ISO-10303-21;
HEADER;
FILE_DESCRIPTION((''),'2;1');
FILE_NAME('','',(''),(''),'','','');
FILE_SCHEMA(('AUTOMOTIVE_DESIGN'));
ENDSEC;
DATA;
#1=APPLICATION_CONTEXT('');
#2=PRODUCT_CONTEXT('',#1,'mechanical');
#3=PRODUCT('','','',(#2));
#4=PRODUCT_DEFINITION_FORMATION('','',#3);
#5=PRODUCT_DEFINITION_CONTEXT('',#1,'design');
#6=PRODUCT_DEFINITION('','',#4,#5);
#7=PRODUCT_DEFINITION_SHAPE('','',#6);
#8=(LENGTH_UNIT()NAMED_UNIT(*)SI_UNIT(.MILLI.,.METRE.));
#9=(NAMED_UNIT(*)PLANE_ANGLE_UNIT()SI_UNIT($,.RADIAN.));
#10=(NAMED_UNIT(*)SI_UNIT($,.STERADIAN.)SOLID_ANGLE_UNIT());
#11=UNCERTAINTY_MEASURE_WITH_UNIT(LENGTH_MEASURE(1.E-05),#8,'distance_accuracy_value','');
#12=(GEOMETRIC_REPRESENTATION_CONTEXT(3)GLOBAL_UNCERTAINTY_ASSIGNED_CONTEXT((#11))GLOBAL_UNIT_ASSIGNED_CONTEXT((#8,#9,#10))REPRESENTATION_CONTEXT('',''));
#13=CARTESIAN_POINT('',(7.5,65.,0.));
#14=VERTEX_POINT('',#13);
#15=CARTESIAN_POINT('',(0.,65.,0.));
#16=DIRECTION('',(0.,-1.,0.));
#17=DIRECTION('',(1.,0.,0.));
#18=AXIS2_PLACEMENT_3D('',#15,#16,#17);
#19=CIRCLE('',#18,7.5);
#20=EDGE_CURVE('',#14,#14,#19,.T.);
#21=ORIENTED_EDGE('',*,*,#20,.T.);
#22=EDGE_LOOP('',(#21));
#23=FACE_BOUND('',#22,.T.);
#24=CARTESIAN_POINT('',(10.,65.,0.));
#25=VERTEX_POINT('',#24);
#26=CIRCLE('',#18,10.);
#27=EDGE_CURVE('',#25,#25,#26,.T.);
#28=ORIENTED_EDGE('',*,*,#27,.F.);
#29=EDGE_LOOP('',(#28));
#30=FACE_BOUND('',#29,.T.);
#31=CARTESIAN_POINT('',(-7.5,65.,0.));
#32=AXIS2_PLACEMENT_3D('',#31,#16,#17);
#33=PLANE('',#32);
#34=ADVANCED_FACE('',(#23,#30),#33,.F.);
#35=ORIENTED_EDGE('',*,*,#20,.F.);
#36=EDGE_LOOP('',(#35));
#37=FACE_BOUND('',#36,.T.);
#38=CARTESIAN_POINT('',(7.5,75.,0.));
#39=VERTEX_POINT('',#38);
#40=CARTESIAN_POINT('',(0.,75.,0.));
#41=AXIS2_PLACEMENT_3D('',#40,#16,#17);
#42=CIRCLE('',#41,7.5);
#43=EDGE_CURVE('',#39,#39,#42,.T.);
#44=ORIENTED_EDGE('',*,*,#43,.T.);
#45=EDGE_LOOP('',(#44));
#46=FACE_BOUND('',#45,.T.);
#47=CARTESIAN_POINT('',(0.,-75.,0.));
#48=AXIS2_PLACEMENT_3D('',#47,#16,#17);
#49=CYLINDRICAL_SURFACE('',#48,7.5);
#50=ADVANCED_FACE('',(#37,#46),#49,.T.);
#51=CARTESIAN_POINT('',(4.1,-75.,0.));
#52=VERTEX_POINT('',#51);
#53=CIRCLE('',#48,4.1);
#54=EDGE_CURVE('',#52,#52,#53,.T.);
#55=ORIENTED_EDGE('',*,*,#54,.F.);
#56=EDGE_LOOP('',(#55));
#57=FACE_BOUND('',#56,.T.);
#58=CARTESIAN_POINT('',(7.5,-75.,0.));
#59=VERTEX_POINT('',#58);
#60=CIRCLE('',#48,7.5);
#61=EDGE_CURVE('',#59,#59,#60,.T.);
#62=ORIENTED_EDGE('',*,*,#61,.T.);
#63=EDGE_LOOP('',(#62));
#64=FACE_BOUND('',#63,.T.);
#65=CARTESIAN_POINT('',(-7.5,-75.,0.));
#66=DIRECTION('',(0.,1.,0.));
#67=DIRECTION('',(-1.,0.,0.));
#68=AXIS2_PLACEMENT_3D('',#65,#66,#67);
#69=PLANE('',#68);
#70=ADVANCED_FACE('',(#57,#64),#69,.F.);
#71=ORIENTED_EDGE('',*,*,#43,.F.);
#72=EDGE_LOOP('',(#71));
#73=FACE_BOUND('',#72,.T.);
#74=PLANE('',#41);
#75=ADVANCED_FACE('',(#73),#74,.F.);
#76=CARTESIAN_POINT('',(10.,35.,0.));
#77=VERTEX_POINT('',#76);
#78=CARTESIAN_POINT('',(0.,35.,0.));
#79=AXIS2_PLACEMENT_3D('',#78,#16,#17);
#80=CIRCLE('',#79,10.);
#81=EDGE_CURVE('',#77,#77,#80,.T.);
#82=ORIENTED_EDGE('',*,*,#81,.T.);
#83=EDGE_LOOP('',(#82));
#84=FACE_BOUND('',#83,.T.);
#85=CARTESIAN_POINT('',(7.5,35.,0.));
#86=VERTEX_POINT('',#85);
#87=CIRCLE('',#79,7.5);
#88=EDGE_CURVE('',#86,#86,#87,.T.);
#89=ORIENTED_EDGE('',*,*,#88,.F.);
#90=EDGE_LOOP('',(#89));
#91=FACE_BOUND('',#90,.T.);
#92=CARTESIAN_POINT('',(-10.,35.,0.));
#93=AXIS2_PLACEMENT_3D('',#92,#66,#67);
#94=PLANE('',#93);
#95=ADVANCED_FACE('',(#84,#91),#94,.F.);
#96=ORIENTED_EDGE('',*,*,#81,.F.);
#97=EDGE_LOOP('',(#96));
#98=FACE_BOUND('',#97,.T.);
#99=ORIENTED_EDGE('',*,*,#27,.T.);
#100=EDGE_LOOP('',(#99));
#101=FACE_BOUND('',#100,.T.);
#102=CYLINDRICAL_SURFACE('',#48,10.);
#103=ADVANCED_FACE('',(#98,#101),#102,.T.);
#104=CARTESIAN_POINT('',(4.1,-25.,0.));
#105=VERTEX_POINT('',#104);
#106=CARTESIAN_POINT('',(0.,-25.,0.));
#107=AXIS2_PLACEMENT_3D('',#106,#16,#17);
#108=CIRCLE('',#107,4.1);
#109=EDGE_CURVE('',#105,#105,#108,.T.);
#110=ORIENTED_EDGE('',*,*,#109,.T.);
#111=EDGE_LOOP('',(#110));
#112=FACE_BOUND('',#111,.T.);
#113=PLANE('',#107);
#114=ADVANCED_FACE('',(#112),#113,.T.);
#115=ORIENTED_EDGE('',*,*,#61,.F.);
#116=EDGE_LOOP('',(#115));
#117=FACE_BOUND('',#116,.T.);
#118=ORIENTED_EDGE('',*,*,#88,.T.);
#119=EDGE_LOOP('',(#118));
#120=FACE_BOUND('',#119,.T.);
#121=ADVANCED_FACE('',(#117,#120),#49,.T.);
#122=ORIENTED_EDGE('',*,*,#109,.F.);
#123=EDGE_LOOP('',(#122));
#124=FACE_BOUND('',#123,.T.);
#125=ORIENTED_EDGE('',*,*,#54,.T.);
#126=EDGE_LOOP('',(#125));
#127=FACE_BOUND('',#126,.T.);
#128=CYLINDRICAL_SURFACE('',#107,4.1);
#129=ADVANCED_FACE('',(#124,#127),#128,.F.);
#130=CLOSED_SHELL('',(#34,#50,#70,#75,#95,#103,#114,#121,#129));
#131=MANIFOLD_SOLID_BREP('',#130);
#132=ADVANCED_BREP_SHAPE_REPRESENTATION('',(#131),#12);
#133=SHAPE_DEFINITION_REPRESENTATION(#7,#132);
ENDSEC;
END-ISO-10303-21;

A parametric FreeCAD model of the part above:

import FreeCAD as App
import Part
import Sketcher

V = App.Vector
Q = App.Units.Quantity

doc = App.newDocument("Part")
params = doc.addObject("Spreadsheet::Sheet", "Params")
for row, (alias, value) in enumerate([
    ("sketch1_height", "150 mm"),
    ("sketch1_height2", "10 mm"),
    ("sketch1_height3", "30 mm"),
    ("sketch1_width", "7.5 mm"),
    ("sketch1_width2", "2.5 mm"),
    ("revolution_angle", "360 deg"),
    ("sketch2_diameter", "8.2 mm"),
    ("pocket1_length", "50 mm"),
], start=1):
    params.set(f"A{row}", alias)
    params.set(f"B{row}", "=" + value)
    params.setAlias(f"B{row}", alias)

body = doc.addObject("PartDesign::Body", "Body")

sketch1 = doc.addObject("Sketcher::SketchObject", "Sketch")
body.addObject(sketch1)
sketch1.AttachmentSupport = (doc.XY_Plane, [""])
sketch1.MapMode = "FlatFace"
sketch1.addGeometry([
    Part.LineSegment(V(0, -75, 0), V(0, 75, 0)),
    Part.LineSegment(V(0, 75, 0), V(-7.5, 75, 0)),
    Part.LineSegment(V(-7.5, 75, 0), V(-7.5, 65, 0)),
    Part.LineSegment(V(-7.5, 65, 0), V(-10, 65, 0)),
    Part.LineSegment(V(-10, 65, 0), V(-10, 35, 0)),
    Part.LineSegment(V(-10, 35, 0), V(-7.5, 35, 0)),
    Part.LineSegment(V(-7.5, 35, 0), V(-7.5, -75, 0)),
    Part.LineSegment(V(-7.5, -75, 0), V(0, -75, 0)),
], False)
sketch1.addConstraint([
    Sketcher.Constraint("Coincident", 0, 2, 1, 1),
    Sketcher.Constraint("Coincident", 1, 2, 2, 1),
    Sketcher.Constraint("Coincident", 2, 2, 3, 1),
    Sketcher.Constraint("Coincident", 3, 2, 4, 1),
    Sketcher.Constraint("Coincident", 4, 2, 5, 1),
    Sketcher.Constraint("Coincident", 5, 2, 6, 1),
    Sketcher.Constraint("Coincident", 6, 2, 7, 1),
    Sketcher.Constraint("Coincident", 7, 2, 0, 1),
    Sketcher.Constraint("Vertical", 0),
    Sketcher.Constraint("Horizontal", 1),
    Sketcher.Constraint("Vertical", 2),
    Sketcher.Constraint("Horizontal", 3),
    Sketcher.Constraint("Vertical", 4),
    Sketcher.Constraint("Horizontal", 5),
    Sketcher.Constraint("Vertical", 6),
    Sketcher.Constraint("Horizontal", 7),
    Sketcher.Constraint("Symmetric", 0, 2, 7, 2, -1, 1),
    Sketcher.Constraint("Vertical", 2, 2, 5, 2),
    Sketcher.Constraint("DistanceY", 0, 1, 0, 2, Q("150 mm")),
    Sketcher.Constraint("DistanceY", 2, 2, 2, 1, Q("10 mm")),
    Sketcher.Constraint("DistanceY", 4, 2, 4, 1, Q("30 mm")),
    Sketcher.Constraint("DistanceX", 1, 2, 1, 1, Q("7.5 mm")),
    Sketcher.Constraint("DistanceX", 3, 2, 3, 1, Q("2.5 mm")),
])
sketch1.setExpression("Constraints[18]", "Params.sketch1_height")
sketch1.setExpression("Constraints[19]", "Params.sketch1_height2")
sketch1.setExpression("Constraints[20]", "Params.sketch1_height3")
sketch1.setExpression("Constraints[21]", "Params.sketch1_width")
sketch1.setExpression("Constraints[22]", "Params.sketch1_width2")
revolution = doc.addObject("PartDesign::Revolution", "Revolution")
body.addObject(revolution)
revolution.Profile = sketch1
revolution.ReferenceAxis = (sketch1, ["V_Axis"])
revolution.setExpression("Angle", "Params.revolution_angle")

sketch2 = doc.addObject("Sketcher::SketchObject", "Sketch001")
body.addObject(sketch2)
sketch2.AttachmentSupport = (doc.XZ_Plane, [""])
sketch2.MapMode = "FlatFace"
sketch2.AttachmentOffset = App.Placement(V(0, 0, 75), App.Rotation())
sketch2.addGeometry(Part.Circle(V(0, 0, 0), V(0, 0, 1), 4.1), False)
sketch2.addConstraint([
    Sketcher.Constraint("Coincident", 0, 3, -1, 1),
    Sketcher.Constraint("Diameter", 0, Q("8.2 mm")),
])
sketch2.setExpression("Constraints[1]", "Params.sketch2_diameter")
pocket1 = doc.addObject("PartDesign::Pocket", "Pocket")
body.addObject(pocket1)
pocket1.Profile = sketch2
pocket1.setExpression("Length", "Params.pocket1_length")

doc.recompute()
